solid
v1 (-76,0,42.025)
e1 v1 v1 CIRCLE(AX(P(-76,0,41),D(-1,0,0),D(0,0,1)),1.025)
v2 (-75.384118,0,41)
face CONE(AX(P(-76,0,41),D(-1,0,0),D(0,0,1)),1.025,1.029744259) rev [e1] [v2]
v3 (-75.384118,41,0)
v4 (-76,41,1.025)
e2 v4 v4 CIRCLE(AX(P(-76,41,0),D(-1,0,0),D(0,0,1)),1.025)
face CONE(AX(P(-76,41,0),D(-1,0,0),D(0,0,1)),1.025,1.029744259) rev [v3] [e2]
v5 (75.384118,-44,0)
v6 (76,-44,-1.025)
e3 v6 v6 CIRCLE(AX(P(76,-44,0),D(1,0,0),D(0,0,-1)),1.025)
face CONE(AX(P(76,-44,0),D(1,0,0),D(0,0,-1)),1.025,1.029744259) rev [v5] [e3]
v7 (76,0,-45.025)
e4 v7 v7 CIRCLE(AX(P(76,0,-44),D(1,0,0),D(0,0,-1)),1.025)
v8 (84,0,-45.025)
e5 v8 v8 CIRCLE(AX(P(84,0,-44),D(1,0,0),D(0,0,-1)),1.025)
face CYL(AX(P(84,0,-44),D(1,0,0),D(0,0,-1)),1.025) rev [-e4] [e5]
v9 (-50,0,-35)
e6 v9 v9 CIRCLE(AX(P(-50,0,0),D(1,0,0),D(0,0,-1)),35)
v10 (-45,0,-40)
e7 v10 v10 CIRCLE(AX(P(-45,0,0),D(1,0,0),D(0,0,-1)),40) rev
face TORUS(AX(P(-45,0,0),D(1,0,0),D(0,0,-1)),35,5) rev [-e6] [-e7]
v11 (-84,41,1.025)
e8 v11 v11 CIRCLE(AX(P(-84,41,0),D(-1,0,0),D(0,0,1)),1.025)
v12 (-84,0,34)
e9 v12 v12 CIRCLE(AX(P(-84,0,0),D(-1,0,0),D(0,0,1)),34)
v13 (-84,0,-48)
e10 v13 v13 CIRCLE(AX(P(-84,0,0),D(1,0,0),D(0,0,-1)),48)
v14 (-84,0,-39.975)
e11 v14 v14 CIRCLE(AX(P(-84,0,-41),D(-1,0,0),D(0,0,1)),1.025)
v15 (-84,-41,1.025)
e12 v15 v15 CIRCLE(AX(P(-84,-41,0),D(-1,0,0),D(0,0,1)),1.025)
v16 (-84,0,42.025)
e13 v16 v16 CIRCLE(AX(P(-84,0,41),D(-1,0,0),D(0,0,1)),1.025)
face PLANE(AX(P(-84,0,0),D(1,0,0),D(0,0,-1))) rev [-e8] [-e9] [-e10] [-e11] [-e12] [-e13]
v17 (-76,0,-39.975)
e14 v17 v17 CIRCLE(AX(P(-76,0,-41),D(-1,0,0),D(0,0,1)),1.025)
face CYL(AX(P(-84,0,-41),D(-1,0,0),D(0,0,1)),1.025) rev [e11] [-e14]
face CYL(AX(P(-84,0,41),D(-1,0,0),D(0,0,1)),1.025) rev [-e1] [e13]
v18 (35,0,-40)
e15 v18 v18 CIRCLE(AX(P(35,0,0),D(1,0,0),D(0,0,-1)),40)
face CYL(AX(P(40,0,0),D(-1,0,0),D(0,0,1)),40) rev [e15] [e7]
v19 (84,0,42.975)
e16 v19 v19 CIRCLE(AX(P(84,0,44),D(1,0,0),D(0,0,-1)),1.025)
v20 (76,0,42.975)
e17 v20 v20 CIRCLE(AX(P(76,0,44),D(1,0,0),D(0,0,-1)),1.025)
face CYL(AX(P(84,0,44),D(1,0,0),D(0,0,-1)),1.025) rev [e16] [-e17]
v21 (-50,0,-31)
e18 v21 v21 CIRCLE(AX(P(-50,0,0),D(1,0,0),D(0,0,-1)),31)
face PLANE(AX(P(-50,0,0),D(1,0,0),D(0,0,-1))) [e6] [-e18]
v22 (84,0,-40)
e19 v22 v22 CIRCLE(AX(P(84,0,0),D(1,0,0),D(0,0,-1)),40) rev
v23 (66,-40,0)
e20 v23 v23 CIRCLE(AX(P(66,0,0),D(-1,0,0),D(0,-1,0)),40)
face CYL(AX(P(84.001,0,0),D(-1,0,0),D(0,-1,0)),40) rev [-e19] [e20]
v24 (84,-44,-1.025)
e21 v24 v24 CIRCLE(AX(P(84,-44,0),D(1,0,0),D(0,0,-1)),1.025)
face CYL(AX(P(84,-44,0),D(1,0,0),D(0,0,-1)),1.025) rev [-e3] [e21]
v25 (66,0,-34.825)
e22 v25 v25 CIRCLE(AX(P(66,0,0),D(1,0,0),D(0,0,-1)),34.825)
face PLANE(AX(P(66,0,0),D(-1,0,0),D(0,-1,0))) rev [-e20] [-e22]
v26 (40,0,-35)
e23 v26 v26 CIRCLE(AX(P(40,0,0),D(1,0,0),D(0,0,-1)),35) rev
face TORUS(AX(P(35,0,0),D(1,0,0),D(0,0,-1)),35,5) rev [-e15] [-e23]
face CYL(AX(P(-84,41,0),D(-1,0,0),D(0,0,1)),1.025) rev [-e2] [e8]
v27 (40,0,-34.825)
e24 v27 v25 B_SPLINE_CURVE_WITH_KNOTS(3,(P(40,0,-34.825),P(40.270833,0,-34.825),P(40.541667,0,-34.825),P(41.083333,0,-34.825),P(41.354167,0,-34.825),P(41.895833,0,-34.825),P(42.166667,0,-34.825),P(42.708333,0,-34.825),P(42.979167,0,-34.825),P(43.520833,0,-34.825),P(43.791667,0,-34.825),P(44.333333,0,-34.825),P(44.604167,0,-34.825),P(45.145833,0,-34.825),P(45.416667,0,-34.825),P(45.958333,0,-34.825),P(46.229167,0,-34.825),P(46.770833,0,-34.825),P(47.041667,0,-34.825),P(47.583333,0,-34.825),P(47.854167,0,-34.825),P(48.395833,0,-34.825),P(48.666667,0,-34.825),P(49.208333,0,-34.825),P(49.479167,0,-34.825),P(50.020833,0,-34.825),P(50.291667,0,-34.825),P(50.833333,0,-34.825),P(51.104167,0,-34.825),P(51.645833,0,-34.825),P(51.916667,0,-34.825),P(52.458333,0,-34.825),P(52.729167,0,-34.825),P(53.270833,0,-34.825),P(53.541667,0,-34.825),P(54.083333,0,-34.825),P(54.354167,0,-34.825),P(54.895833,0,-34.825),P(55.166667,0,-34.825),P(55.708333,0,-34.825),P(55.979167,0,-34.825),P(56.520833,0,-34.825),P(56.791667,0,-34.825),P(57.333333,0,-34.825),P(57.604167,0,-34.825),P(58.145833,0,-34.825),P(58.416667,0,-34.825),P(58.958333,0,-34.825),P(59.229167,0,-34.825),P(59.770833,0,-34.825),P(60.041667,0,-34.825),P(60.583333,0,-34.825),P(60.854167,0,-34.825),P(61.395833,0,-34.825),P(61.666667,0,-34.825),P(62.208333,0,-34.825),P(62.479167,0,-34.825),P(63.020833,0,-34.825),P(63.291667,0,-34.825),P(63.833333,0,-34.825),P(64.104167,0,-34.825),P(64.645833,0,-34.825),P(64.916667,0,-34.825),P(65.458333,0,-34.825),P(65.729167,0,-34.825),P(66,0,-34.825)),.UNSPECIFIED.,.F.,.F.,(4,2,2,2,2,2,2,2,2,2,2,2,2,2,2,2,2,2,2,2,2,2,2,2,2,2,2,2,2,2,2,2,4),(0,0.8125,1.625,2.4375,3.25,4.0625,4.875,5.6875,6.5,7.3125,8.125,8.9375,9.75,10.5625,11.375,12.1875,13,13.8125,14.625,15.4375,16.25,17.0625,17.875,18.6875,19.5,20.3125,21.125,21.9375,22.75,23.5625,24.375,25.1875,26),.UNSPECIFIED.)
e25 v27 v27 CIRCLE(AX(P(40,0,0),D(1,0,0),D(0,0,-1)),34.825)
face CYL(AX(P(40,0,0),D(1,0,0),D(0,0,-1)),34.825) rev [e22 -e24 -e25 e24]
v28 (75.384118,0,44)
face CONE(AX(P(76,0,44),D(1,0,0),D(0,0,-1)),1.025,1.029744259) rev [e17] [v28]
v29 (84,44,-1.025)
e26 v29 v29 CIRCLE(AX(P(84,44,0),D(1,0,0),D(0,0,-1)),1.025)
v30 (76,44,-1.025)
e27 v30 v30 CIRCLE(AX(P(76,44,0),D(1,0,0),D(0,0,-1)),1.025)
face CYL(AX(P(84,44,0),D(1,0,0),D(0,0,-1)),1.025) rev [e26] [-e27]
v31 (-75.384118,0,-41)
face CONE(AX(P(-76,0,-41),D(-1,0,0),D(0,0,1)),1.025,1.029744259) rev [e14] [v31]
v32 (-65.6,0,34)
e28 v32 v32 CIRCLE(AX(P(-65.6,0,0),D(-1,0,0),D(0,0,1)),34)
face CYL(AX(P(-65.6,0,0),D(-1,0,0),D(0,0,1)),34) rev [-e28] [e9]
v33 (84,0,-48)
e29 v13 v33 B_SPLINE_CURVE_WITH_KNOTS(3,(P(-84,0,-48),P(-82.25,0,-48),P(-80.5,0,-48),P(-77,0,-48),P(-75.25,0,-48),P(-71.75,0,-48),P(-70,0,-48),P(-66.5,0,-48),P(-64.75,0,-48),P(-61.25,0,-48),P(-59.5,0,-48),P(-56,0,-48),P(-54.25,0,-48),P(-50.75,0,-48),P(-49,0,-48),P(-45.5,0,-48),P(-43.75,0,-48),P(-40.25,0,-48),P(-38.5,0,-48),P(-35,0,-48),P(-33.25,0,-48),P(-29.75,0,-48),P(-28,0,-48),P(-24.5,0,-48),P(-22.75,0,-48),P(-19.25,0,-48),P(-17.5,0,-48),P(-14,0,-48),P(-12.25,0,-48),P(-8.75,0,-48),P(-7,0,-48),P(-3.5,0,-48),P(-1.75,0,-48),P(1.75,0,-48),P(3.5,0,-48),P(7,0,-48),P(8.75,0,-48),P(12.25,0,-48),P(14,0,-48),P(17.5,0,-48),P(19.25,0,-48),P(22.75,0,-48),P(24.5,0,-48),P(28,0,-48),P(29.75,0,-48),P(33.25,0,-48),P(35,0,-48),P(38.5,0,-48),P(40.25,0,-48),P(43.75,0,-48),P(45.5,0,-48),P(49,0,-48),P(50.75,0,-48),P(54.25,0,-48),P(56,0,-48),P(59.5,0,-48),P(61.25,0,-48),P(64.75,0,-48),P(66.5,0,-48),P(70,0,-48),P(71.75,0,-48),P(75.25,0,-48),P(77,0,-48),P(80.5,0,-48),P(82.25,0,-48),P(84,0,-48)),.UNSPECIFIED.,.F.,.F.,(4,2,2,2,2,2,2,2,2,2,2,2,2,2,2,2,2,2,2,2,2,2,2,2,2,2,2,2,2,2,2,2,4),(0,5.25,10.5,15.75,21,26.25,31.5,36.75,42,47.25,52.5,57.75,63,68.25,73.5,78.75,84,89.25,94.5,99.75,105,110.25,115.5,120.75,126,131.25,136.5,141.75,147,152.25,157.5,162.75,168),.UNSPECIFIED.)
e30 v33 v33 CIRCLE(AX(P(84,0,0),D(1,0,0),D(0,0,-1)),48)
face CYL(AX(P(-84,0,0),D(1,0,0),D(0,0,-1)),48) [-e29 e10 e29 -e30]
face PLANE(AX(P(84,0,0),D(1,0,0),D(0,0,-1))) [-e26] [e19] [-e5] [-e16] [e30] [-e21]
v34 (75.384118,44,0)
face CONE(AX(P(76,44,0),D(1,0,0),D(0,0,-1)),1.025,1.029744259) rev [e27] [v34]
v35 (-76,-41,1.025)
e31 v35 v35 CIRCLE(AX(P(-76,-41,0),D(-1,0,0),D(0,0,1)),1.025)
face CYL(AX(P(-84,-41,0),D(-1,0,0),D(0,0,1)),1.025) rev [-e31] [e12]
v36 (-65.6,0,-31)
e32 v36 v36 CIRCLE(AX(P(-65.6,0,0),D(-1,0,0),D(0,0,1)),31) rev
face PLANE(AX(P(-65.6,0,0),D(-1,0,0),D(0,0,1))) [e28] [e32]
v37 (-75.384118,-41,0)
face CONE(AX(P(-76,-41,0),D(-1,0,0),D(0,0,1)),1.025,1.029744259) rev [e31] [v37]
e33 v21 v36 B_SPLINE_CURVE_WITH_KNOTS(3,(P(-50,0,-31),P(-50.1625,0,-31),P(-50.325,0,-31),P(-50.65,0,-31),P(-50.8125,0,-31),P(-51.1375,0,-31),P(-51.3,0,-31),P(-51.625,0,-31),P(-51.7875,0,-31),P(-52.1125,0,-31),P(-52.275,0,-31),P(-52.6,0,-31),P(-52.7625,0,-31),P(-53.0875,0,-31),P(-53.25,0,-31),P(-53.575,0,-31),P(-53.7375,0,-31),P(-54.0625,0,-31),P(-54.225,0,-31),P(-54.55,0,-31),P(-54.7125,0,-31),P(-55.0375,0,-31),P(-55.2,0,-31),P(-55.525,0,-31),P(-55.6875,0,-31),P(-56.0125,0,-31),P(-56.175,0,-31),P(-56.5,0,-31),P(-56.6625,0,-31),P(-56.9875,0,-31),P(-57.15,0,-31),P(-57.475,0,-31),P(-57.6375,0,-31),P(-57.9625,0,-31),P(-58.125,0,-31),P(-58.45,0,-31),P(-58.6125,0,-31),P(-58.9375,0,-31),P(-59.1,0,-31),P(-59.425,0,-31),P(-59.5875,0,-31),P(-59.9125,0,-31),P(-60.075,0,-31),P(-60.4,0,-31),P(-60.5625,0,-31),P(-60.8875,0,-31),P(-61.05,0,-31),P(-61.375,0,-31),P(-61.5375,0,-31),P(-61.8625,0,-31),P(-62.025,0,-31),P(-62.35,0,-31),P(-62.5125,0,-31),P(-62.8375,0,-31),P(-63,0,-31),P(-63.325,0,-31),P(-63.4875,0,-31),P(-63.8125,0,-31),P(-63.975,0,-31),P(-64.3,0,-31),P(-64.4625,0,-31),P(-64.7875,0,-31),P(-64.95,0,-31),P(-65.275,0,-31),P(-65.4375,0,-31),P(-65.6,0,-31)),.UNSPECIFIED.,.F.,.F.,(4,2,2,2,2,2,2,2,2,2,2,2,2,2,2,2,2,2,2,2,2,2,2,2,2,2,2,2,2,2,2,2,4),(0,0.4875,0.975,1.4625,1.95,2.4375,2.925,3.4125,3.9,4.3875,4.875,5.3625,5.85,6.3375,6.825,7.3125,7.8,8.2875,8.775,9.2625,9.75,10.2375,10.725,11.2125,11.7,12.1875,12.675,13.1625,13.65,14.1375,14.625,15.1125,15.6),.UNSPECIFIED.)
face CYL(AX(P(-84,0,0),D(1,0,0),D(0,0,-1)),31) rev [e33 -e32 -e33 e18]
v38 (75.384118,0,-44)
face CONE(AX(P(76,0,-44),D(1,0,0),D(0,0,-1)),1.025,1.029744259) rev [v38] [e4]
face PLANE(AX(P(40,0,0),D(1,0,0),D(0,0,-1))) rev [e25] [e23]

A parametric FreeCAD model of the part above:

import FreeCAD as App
import Part
import Sketcher


def edges_at(feature, points):
    """Names of the edges that pass closest to the given points."""
    edges = feature.Shape.Edges
    near = lambda p: min(range(len(edges)), key=lambda i: edges[i].distToShape(Part.Vertex(*p))[0])
    return sorted({f"Edge{near(p) + 1}" for p in points})

doc = App.newDocument("Part")
body = doc.addObject("PartDesign::Body", "Body")

sketch1 = body.newObject("Sketcher::SketchObject", "Sketch")
sketch1.AttachmentSupport = (doc.getObject("YZ_Plane"), [""])
sketch1.MapMode = "FlatFace"
sketch1.addGeometry(Part.Circle(App.Vector(0, 0, 0), App.Vector(0, 0, 1), 48), False)
sketch1.addConstraint([
    Sketcher.Constraint("Coincident", 0, 3, -1, 1),
    Sketcher.Constraint("Diameter", 0, 96.0),
])
pad1 = body.newObject("PartDesign::Pad", "Pad")
pad1.Profile = sketch1
pad1.Type = "TwoLengths"
pad1.Length = 84
pad1.Length2 = 84

sketch2 = body.newObject("Sketcher::SketchObject", "Sketch001")
sketch2.AttachmentSupport = (doc.getObject("YZ_Plane"), [""])
sketch2.MapMode = "FlatFace"
sketch2.addGeometry(Part.Circle(App.Vector(0, 0, 0), App.Vector(0, 0, 1), 40), False)
sketch2.addConstraint([
    Sketcher.Constraint("Coincident", 0, 3, -1, 1),
    Sketcher.Constraint("Diameter", 0, 80.0),
])
pocket1 = body.newObject("PartDesign::Pocket", "Pocket")
pocket1.Profile = sketch2
pocket1.Type = "TwoLengths"
pocket1.Length = 40
pocket1.Length2 = 50
pocket1.Reversed = True

sketch3 = body.newObject("Sketcher::SketchObject", "Sketch002")
sketch3.AttachmentSupport = (doc.getObject("YZ_Plane"), [""])
sketch3.MapMode = "FlatFace"
sketch3.addGeometry(Part.Circle(App.Vector(0, 0, 0), App.Vector(0, 0, 1), 31), False)
sketch3.addConstraint([
    Sketcher.Constraint("Coincident", 0, 3, -1, 1),
    Sketcher.Constraint("Diameter", 0, 62.0),
])
pocket2 = body.newObject("PartDesign::Pocket", "Pocket001")
pocket2.Profile = sketch3
pocket2.Type = "ThroughAll"
pocket2.Midplane = True
doc.recompute()

fillet = body.newObject("PartDesign::Fillet", "Fillet")
fillet.Base = (pocket2, edges_at(pocket2, [(40, 0, 40), (-50, 0, 40)]))
fillet.Radius = 5

sketch4 = body.newObject("Sketcher::SketchObject", "Sketch003")
sketch4.AttachmentSupport = (doc.getObject("YZ_Plane"), [""])
sketch4.MapMode = "FlatFace"
sketch4.AttachmentOffset = App.Placement(App.Vector(0, 0, 66), App.Rotation())
sketch4.addGeometry(Part.Circle(App.Vector(0, 0, 0), App.Vector(0, 0, 1), 40), False)
sketch4.addConstraint([
    Sketcher.Constraint("Coincident", 0, 3, -1, 1),
    Sketcher.Constraint("Diameter", 0, 80.0),
])
pocket3 = body.newObject("PartDesign::Pocket", "Pocket002")
pocket3.Profile = sketch4
pocket3.Length = 18
pocket3.Reversed = True

sketch5 = body.newObject("Sketcher::SketchObject", "Sketch004")
sketch5.AttachmentSupport = (doc.getObject("YZ_Plane"), [""])
sketch5.MapMode = "FlatFace"
sketch5.AttachmentOffset = App.Placement(App.Vector(0, 0, -84), App.Rotation())
sketch5.addGeometry(Part.Circle(App.Vector(0, 0, 0), App.Vector(0, 0, 1), 34), False)
sketch5.addConstraint([
    Sketcher.Constraint("Coincident", 0, 3, -1, 1),
    Sketcher.Constraint("Diameter", 0, 68.0),
])
pocket4 = body.newObject("PartDesign::Pocket", "Pocket003")
pocket4.Profile = sketch5
pocket4.Length = 18.4
pocket4.Reversed = True

sketch6 = body.newObject("Sketcher::SketchObject", "Sketch005")
sketch6.AttachmentSupport = (doc.getObject("YZ_Plane"), [""])
sketch6.MapMode = "FlatFace"
sketch6.AttachmentOffset = App.Placement(App.Vector(0, 0, 84), App.Rotation())
sketch6.addGeometry([
    Part.Circle(App.Vector(80.1, -256.4, 0), App.Vector(0, 0, 1), 1),
    Part.Circle(App.Vector(-44, 0, 0), App.Vector(0, 0, 1), 1),
    Part.Circle(App.Vector(0, 44, 0), App.Vector(0, 0, 1), 1),
    Part.Circle(App.Vector(44, 0, 0), App.Vector(0, 0, 1), 1),
    Part.Circle(App.Vector(0, -44, 0), App.Vector(0, 0, 1), 1),
], False)
sketch6.addConstraint([
    Sketcher.Constraint("Equal", 0, 1),
    Sketcher.Constraint("Equal", 1, 2),
    Sketcher.Constraint("Equal", 2, 3),
    Sketcher.Constraint("Equal", 3, 4),
    Sketcher.Constraint("Symmetric", 1, 3, 3, 3, -1, 1),
    Sketcher.Constraint("Symmetric", 2, 3, 4, 3, -1, 1),
    Sketcher.Constraint("PointOnObject", 1, 3, -1),
    Sketcher.Constraint("PointOnObject", 2, 3, -2),
    Sketcher.Constraint("Diameter", 0, 2.05),
    Sketcher.Constraint("DistanceX", 1, 3, -1, 1, 44.0),
    Sketcher.Constraint("DistanceY", -1, 1, 2, 3, 44.0),
    Sketcher.Constraint("DistanceX", -1, 1, 0, 3, 80.103154),
    Sketcher.Constraint("DistanceY", 0, 3, -1, 1, 256.353874),
])
doc.recompute()
hole = body.newObject("PartDesign::Hole", "Hole")
hole.Profile = sketch6
hole.ThreadType = "None"
hole.Diameter = 2.05
hole.DepthType = "Dimension"
hole.Depth = 8
hole.DrillPoint = "Angled"
hole.DrillPointAngle = 118

sketch7 = body.newObject("Sketcher::SketchObject", "Sketch006")
sketch7.AttachmentSupport = (doc.getObject("YZ_Plane"), [""])
sketch7.MapMode = "FlatFace"
sketch7.AttachmentOffset = App.Placement(App.Vector(0, 0, -84), App.Rotation())
sketch7.addGeometry([
    Part.Circle(App.Vector(41, 0, 0), App.Vector(0, 0, 1), 1),
    Part.Circle(App.Vector(-41, 0, 0), App.Vector(0, 0, 1), 1),
    Part.Circle(App.Vector(0, 41, 0), App.Vector(0, 0, 1), 1),
    Part.Circle(App.Vector(0, -41, 0), App.Vector(0, 0, 1), 1),
], False)
sketch7.addConstraint([
    Sketcher.Constraint("Equal", 0, 1),
    Sketcher.Constraint("Equal", 1, 2),
    Sketcher.Constraint("Equal", 2, 3),
    Sketcher.Constraint("Symmetric", 0, 3, 1, 3, -1, 1),
    Sketcher.Constraint("Symmetric", 2, 3, 3, 3, -1, 1),
    Sketcher.Constraint("PointOnObject", 0, 3, -1),
    Sketcher.Constraint("PointOnObject", 2, 3, -2),
    Sketcher.Constraint("Diameter", 0, 2.05),
    Sketcher.Constraint("DistanceX", -1, 1, 0, 3, 41.0),
    Sketcher.Constraint("DistanceY", -1, 1, 2, 3, 41.0),
])
doc.recompute()
hole2 = body.newObject("PartDesign::Hole", "Hole001")
hole2.Profile = sketch7
hole2.ThreadType = "None"
hole2.Diameter = 2.05
hole2.DepthType = "Dimension"
hole2.Depth = 8
hole2.DrillPoint = "Angled"
hole2.DrillPointAngle = 118
hole2.Reversed = True

sketch8 = body.newObject("Sketcher::SketchObject", "Sketch007")
sketch8.AttachmentSupport = (doc.getObject("YZ_Plane"), [""])
sketch8.MapMode = "FlatFace"
sketch8.AttachmentOffset = App.Placement(App.Vector(0, 0, 66), App.Rotation())
sketch8.addGeometry(Part.Circle(App.Vector(0, 0, 0), App.Vector(0, 0, 1), 35), False)
sketch8.addConstraint([
    Sketcher.Constraint("Coincident", 0, 3, -1, 1),
    Sketcher.Constraint("Diameter", 0, 69.65),
])
pocket5 = body.newObject("PartDesign::Pocket", "Pocket004")
pocket5.Profile = sketch8
pocket5.Length = 26

doc.recompute()
